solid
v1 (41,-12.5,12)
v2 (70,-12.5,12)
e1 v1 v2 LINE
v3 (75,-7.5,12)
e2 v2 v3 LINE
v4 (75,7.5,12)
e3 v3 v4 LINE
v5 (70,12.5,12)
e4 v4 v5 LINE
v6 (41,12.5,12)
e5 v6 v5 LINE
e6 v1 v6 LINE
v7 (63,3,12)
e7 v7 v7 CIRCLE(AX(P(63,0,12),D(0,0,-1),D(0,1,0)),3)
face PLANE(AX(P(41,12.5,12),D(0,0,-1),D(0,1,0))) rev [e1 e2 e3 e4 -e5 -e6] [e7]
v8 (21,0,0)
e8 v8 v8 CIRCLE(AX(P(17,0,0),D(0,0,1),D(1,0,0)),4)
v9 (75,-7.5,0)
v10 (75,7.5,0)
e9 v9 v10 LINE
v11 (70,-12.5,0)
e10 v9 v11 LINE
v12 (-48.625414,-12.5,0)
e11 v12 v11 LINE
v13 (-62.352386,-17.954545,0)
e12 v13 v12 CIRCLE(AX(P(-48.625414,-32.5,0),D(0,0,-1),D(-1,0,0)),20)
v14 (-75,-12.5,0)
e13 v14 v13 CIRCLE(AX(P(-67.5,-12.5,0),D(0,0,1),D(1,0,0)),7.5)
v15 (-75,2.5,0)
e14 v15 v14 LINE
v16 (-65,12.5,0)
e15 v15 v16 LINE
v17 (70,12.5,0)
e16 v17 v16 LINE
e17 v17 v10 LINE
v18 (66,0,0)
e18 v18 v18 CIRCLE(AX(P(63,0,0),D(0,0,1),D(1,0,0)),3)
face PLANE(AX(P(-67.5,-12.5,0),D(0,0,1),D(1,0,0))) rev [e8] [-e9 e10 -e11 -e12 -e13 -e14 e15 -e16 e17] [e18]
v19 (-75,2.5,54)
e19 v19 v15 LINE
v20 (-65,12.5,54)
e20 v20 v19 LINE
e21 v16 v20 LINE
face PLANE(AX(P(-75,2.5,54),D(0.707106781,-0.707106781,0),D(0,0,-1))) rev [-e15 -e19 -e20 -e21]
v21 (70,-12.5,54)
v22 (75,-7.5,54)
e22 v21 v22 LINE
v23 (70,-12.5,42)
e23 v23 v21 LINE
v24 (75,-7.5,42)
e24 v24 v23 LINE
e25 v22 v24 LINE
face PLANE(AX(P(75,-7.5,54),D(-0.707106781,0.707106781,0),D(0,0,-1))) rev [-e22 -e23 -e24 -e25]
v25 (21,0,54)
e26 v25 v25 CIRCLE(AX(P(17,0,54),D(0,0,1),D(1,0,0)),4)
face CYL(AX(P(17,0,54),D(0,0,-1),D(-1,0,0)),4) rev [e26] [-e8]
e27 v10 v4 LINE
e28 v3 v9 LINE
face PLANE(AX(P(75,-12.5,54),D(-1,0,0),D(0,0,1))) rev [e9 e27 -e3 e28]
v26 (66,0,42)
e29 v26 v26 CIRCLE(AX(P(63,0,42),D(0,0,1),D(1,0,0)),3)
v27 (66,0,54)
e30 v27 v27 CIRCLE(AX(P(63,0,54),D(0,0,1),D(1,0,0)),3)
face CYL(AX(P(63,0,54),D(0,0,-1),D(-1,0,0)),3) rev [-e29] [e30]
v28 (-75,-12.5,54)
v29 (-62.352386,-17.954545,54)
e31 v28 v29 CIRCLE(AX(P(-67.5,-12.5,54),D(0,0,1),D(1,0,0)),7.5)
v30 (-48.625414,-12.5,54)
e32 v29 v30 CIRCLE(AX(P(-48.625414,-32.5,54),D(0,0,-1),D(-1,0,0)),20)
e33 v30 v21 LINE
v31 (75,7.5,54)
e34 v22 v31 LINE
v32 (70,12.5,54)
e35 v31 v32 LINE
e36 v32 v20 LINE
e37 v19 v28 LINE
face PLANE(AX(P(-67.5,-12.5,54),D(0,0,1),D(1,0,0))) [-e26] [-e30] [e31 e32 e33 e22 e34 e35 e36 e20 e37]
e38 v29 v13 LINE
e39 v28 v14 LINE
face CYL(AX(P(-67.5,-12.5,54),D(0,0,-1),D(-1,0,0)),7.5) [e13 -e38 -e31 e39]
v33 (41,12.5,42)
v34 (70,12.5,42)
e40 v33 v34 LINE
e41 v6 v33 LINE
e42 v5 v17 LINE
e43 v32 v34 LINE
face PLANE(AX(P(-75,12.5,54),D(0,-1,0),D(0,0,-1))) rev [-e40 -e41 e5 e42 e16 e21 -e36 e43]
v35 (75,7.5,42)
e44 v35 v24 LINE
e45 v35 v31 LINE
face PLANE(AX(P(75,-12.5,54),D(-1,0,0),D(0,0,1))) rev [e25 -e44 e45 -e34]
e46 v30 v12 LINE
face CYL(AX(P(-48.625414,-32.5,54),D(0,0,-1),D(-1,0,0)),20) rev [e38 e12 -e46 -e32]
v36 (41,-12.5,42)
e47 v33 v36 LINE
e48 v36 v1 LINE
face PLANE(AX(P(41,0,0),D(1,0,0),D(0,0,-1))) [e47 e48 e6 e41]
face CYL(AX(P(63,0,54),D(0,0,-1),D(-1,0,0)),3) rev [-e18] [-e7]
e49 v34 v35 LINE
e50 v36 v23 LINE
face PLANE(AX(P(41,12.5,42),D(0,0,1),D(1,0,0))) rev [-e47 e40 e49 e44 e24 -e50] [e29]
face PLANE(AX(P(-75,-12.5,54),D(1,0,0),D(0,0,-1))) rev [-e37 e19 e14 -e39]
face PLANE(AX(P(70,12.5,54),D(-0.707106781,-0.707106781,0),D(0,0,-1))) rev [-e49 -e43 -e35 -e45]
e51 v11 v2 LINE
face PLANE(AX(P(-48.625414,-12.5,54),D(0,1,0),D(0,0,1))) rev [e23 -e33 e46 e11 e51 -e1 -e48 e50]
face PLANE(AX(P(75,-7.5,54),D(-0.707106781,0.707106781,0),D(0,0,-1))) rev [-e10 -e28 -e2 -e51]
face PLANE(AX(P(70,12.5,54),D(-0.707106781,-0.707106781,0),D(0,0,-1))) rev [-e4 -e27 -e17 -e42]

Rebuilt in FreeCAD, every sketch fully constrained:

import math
import FreeCAD as App
import Part
import Sketcher

V = App.Vector


def edges_at(feature, points):
    """Names of the edges that pass closest to the given points."""
    edges = feature.Shape.Edges
    near = lambda p: min(range(len(edges)), key=lambda i: edges[i].distToShape(Part.Vertex(*p))[0])
    return sorted({f"Edge{near(p) + 1}" for p in points})


def add_polygon(sketch, points):
    """Adds a closed chain of lines whose ends are joined by coincident constraints."""
    first, n = sketch.GeometryCount, len(points)
    for a, b in zip(points, points[1:] + points[:1]):
        sketch.addGeometry(Part.LineSegment(App.Vector(*a, 0), App.Vector(*b, 0)), False)
    for i in range(n):
        sketch.addConstraint(Sketcher.Constraint("Coincident", first + i, 2, first + (i + 1) % n, 1))

doc = App.newDocument("Part")
params = doc.addObject("Spreadsheet::Sheet", "Params")
for row, (alias, value) in enumerate([
    ("sketch1_diameter", "8 mm"),
    ("sketch1_diameter2", "6 mm"),
    ("sketch1_radius", "20 mm"),
    ("sketch1_radius2", "7.5 mm"),
    ("sketch1_width", "150 mm"),
    ("pad1_length", "54 mm"),
    ("sketch2_width", "25 mm"),
    ("sketch2_height", "30 mm"),
    ("pocket1_length", "34 mm"),
    ("chamfer_size", "5 mm"),
    ("chamfer2_size", "10 mm"),
], start=1):
    params.set(f"A{row}", alias)
    params.set(f"B{row}", "=" + value)
    params.setAlias(f"B{row}", alias)

body = doc.addObject("PartDesign::Body", "Body")

sketch1 = body.newObject("Sketcher::SketchObject", "Sketch")
sketch1.AttachmentSupport = (doc.getObject("XY_Plane"), [""])
sketch1.MapMode = "FlatFace"
sketch1.addGeometry(Part.LineSegment(V(-48.6, -12.5, 0), V(75, -12.5, 0)), False)
sketch1.addGeometry(Part.LineSegment(V(75, -12.5, 0), V(75, 12.5, 0)), False)
sketch1.addGeometry(Part.LineSegment(V(75, 12.5, 0), V(-75, 12.5, 0)), False)
sketch1.addGeometry(Part.LineSegment(V(-75, 12.5, 0), V(-75, -12.5, 0)), False)
sketch1.addGeometry(Part.ArcOfCircle(Part.Circle(V(-67.5, -12.5, 0), V(0, 0, 1), 7.5), math.radians(180), math.radians(313)), False)
sketch1.addGeometry(Part.ArcOfCircle(Part.Circle(V(-48.6, -32.5, 0), V(0, 0, 1), 20), math.radians(90), math.radians(133)), False)
sketch1.addGeometry(Part.Circle(V(17, 0, 0), V(0, 0, 1), 4), False)
sketch1.addGeometry(Part.Circle(V(63, 0, 0), V(0, 0, 1), 3), False)
sketch1.addConstraint(Sketcher.Constraint("Coincident", 0, 2, 1, 1))
sketch1.addConstraint(Sketcher.Constraint("Coincident", 1, 2, 2, 1))
sketch1.addConstraint(Sketcher.Constraint("Coincident", 2, 2, 3, 1))
sketch1.addConstraint(Sketcher.Constraint("Tangent", 3, 2, 4, 1))
sketch1.addConstraint(Sketcher.Constraint("Tangent", 4, 2, 5, 2))
sketch1.addConstraint(Sketcher.Constraint("Tangent", 5, 1, 0, 1))
sketch1.addConstraint(Sketcher.Constraint("Horizontal", 0))
sketch1.addConstraint(Sketcher.Constraint("Vertical", 1))
sketch1.addConstraint(Sketcher.Constraint("Horizontal", 2))
sketch1.addConstraint(Sketcher.Constraint("Vertical", 3))
sketch1.addConstraint(Sketcher.Constraint("Symmetric", 0, 2, 2, 2, -1, 1))
sketch1.addConstraint(Sketcher.Constraint("PointOnObject", 6, 3, -1))
sketch1.addConstraint(Sketcher.Constraint("PointOnObject", 7, 3, -1))
sketch1.addConstraint(Sketcher.Constraint("Horizontal", 4, 3, 0, 2))
sketch1.addConstraint(Sketcher.Constraint("Diameter", 6, 8.0))
sketch1.addConstraint(Sketcher.Constraint("Diameter", 7, 6.0))
sketch1.addConstraint(Sketcher.Constraint("Radius", 5, 20.0))
sketch1.addConstraint(Sketcher.Constraint("Radius", 4, 7.5))
sketch1.addConstraint(Sketcher.Constraint("DistanceX", 2, 2, 2, 1, 150.0))
sketch1.addConstraint(Sketcher.Constraint("DistanceY", 1, 1, 1, 2, 25.0))
sketch1.addConstraint(Sketcher.Constraint("DistanceX", -1, 1, 6, 3, 17.0))
sketch1.addConstraint(Sketcher.Constraint("DistanceX", -1, 1, 7, 3, 63.0))
sketch1.setExpression("Constraints[14]", "Params.sketch1_diameter")
sketch1.setExpression("Constraints[15]", "Params.sketch1_diameter2")
sketch1.setExpression("Constraints[16]", "Params.sketch1_radius")
sketch1.setExpression("Constraints[17]", "Params.sketch1_radius2")
sketch1.setExpression("Constraints[18]", "Params.sketch1_width")
pad1 = body.newObject("PartDesign::Pad", "Pad")
pad1.Profile = sketch1
pad1.setExpression("Length", "Params.pad1_length")

sketch2 = body.newObject("Sketcher::SketchObject", "Sketch001")
sketch2.AttachmentSupport = (doc.getObject("YZ_Plane"), [""])
sketch2.MapMode = "FlatFace"
sketch2.AttachmentOffset = App.Placement(V(0, 0, 75), App.Rotation())
add_polygon(sketch2, [(12, 42), (-12, 42), (-12, 12), (12, 12)])
sketch2.addConstraint(Sketcher.Constraint("Horizontal", 0))
sketch2.addConstraint(Sketcher.Constraint("Vertical", 1))
sketch2.addConstraint(Sketcher.Constraint("Horizontal", 2))
sketch2.addConstraint(Sketcher.Constraint("Vertical", 3))
sketch2.addConstraint(Sketcher.Constraint("DistanceX", 0, 2, 0, 1, 25.0))
sketch2.addConstraint(Sketcher.Constraint("DistanceY", 1, 2, 1, 1, 30.0))
sketch2.addConstraint(Sketcher.Constraint("DistanceY", -1, 1, 0, 2, 42.0))
sketch2.addConstraint(Sketcher.Constraint("DistanceX", 0, 2, -1, 1, 12.5))
sketch2.setExpression("Constraints[8]", "Params.sketch2_width")
sketch2.setExpression("Constraints[9]", "Params.sketch2_height")
pocket1 = body.newObject("PartDesign::Pocket", "Pocket")
pocket1.Profile = sketch2
pocket1.setExpression("Length", "Params.pocket1_length")
doc.recompute()

chamfer = body.newObject("PartDesign::Chamfer", "Chamfer")
chamfer.Base = (pocket1, edges_at(pocket1, [
    (75, -12.5, 48),
    (75, 12.5, 48),
    (75, -12.5, 6),
    (75, 12.5, 6),
]))
chamfer.setExpression("Size", "Params.chamfer_size")
doc.recompute()

chamfer2 = body.newObject("PartDesign::Chamfer", "Chamfer001")
chamfer2.Base = (chamfer, edges_at(chamfer, [(-75, 12.5, 27)]))
chamfer2.setExpression("Size", "Params.chamfer2_size")

doc.recompute()
